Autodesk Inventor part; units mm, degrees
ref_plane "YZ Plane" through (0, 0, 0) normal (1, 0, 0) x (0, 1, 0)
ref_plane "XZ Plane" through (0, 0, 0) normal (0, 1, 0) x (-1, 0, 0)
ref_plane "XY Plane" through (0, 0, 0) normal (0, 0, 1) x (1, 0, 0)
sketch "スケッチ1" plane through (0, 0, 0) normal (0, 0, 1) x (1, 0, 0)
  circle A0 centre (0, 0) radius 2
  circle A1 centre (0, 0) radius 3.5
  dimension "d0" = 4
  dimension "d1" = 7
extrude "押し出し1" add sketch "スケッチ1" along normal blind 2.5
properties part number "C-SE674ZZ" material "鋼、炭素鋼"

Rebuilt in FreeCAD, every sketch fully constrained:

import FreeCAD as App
import Part
import Sketcher

V = App.Vector
Q = App.Units.Quantity

doc = App.newDocument("Part")
body = doc.addObject("PartDesign::Body", "Body")

# Sketch on XY plane
sketch1 = doc.addObject("Sketcher::SketchObject", "Sketch")
body.addObject(sketch1)
sketch1.AttachmentSupport = (doc.XY_Plane, [""])
sketch1.MapMode = "FlatFace"
sketch1.addGeometry([
    Part.Circle(V(0, 0, 0), V(0, 0, 1), 3.5),
    Part.Circle(V(0, 0, 0), V(0, 0, 1), 2),
], False)
sketch1.addConstraint([
    Sketcher.Constraint("Coincident", 0, 3, -1, 1),
    Sketcher.Constraint("Coincident", 1, 3, -1, 1),
    Sketcher.Constraint("Diameter", 0, Q("7 mm")),
    Sketcher.Constraint("Diameter", 1, Q("4 mm")),
])
pad1 = doc.addObject("PartDesign::Pad", "Pad")
body.addObject(pad1)
pad1.Profile = sketch1
pad1.Length = 2.5

doc.recompute()
